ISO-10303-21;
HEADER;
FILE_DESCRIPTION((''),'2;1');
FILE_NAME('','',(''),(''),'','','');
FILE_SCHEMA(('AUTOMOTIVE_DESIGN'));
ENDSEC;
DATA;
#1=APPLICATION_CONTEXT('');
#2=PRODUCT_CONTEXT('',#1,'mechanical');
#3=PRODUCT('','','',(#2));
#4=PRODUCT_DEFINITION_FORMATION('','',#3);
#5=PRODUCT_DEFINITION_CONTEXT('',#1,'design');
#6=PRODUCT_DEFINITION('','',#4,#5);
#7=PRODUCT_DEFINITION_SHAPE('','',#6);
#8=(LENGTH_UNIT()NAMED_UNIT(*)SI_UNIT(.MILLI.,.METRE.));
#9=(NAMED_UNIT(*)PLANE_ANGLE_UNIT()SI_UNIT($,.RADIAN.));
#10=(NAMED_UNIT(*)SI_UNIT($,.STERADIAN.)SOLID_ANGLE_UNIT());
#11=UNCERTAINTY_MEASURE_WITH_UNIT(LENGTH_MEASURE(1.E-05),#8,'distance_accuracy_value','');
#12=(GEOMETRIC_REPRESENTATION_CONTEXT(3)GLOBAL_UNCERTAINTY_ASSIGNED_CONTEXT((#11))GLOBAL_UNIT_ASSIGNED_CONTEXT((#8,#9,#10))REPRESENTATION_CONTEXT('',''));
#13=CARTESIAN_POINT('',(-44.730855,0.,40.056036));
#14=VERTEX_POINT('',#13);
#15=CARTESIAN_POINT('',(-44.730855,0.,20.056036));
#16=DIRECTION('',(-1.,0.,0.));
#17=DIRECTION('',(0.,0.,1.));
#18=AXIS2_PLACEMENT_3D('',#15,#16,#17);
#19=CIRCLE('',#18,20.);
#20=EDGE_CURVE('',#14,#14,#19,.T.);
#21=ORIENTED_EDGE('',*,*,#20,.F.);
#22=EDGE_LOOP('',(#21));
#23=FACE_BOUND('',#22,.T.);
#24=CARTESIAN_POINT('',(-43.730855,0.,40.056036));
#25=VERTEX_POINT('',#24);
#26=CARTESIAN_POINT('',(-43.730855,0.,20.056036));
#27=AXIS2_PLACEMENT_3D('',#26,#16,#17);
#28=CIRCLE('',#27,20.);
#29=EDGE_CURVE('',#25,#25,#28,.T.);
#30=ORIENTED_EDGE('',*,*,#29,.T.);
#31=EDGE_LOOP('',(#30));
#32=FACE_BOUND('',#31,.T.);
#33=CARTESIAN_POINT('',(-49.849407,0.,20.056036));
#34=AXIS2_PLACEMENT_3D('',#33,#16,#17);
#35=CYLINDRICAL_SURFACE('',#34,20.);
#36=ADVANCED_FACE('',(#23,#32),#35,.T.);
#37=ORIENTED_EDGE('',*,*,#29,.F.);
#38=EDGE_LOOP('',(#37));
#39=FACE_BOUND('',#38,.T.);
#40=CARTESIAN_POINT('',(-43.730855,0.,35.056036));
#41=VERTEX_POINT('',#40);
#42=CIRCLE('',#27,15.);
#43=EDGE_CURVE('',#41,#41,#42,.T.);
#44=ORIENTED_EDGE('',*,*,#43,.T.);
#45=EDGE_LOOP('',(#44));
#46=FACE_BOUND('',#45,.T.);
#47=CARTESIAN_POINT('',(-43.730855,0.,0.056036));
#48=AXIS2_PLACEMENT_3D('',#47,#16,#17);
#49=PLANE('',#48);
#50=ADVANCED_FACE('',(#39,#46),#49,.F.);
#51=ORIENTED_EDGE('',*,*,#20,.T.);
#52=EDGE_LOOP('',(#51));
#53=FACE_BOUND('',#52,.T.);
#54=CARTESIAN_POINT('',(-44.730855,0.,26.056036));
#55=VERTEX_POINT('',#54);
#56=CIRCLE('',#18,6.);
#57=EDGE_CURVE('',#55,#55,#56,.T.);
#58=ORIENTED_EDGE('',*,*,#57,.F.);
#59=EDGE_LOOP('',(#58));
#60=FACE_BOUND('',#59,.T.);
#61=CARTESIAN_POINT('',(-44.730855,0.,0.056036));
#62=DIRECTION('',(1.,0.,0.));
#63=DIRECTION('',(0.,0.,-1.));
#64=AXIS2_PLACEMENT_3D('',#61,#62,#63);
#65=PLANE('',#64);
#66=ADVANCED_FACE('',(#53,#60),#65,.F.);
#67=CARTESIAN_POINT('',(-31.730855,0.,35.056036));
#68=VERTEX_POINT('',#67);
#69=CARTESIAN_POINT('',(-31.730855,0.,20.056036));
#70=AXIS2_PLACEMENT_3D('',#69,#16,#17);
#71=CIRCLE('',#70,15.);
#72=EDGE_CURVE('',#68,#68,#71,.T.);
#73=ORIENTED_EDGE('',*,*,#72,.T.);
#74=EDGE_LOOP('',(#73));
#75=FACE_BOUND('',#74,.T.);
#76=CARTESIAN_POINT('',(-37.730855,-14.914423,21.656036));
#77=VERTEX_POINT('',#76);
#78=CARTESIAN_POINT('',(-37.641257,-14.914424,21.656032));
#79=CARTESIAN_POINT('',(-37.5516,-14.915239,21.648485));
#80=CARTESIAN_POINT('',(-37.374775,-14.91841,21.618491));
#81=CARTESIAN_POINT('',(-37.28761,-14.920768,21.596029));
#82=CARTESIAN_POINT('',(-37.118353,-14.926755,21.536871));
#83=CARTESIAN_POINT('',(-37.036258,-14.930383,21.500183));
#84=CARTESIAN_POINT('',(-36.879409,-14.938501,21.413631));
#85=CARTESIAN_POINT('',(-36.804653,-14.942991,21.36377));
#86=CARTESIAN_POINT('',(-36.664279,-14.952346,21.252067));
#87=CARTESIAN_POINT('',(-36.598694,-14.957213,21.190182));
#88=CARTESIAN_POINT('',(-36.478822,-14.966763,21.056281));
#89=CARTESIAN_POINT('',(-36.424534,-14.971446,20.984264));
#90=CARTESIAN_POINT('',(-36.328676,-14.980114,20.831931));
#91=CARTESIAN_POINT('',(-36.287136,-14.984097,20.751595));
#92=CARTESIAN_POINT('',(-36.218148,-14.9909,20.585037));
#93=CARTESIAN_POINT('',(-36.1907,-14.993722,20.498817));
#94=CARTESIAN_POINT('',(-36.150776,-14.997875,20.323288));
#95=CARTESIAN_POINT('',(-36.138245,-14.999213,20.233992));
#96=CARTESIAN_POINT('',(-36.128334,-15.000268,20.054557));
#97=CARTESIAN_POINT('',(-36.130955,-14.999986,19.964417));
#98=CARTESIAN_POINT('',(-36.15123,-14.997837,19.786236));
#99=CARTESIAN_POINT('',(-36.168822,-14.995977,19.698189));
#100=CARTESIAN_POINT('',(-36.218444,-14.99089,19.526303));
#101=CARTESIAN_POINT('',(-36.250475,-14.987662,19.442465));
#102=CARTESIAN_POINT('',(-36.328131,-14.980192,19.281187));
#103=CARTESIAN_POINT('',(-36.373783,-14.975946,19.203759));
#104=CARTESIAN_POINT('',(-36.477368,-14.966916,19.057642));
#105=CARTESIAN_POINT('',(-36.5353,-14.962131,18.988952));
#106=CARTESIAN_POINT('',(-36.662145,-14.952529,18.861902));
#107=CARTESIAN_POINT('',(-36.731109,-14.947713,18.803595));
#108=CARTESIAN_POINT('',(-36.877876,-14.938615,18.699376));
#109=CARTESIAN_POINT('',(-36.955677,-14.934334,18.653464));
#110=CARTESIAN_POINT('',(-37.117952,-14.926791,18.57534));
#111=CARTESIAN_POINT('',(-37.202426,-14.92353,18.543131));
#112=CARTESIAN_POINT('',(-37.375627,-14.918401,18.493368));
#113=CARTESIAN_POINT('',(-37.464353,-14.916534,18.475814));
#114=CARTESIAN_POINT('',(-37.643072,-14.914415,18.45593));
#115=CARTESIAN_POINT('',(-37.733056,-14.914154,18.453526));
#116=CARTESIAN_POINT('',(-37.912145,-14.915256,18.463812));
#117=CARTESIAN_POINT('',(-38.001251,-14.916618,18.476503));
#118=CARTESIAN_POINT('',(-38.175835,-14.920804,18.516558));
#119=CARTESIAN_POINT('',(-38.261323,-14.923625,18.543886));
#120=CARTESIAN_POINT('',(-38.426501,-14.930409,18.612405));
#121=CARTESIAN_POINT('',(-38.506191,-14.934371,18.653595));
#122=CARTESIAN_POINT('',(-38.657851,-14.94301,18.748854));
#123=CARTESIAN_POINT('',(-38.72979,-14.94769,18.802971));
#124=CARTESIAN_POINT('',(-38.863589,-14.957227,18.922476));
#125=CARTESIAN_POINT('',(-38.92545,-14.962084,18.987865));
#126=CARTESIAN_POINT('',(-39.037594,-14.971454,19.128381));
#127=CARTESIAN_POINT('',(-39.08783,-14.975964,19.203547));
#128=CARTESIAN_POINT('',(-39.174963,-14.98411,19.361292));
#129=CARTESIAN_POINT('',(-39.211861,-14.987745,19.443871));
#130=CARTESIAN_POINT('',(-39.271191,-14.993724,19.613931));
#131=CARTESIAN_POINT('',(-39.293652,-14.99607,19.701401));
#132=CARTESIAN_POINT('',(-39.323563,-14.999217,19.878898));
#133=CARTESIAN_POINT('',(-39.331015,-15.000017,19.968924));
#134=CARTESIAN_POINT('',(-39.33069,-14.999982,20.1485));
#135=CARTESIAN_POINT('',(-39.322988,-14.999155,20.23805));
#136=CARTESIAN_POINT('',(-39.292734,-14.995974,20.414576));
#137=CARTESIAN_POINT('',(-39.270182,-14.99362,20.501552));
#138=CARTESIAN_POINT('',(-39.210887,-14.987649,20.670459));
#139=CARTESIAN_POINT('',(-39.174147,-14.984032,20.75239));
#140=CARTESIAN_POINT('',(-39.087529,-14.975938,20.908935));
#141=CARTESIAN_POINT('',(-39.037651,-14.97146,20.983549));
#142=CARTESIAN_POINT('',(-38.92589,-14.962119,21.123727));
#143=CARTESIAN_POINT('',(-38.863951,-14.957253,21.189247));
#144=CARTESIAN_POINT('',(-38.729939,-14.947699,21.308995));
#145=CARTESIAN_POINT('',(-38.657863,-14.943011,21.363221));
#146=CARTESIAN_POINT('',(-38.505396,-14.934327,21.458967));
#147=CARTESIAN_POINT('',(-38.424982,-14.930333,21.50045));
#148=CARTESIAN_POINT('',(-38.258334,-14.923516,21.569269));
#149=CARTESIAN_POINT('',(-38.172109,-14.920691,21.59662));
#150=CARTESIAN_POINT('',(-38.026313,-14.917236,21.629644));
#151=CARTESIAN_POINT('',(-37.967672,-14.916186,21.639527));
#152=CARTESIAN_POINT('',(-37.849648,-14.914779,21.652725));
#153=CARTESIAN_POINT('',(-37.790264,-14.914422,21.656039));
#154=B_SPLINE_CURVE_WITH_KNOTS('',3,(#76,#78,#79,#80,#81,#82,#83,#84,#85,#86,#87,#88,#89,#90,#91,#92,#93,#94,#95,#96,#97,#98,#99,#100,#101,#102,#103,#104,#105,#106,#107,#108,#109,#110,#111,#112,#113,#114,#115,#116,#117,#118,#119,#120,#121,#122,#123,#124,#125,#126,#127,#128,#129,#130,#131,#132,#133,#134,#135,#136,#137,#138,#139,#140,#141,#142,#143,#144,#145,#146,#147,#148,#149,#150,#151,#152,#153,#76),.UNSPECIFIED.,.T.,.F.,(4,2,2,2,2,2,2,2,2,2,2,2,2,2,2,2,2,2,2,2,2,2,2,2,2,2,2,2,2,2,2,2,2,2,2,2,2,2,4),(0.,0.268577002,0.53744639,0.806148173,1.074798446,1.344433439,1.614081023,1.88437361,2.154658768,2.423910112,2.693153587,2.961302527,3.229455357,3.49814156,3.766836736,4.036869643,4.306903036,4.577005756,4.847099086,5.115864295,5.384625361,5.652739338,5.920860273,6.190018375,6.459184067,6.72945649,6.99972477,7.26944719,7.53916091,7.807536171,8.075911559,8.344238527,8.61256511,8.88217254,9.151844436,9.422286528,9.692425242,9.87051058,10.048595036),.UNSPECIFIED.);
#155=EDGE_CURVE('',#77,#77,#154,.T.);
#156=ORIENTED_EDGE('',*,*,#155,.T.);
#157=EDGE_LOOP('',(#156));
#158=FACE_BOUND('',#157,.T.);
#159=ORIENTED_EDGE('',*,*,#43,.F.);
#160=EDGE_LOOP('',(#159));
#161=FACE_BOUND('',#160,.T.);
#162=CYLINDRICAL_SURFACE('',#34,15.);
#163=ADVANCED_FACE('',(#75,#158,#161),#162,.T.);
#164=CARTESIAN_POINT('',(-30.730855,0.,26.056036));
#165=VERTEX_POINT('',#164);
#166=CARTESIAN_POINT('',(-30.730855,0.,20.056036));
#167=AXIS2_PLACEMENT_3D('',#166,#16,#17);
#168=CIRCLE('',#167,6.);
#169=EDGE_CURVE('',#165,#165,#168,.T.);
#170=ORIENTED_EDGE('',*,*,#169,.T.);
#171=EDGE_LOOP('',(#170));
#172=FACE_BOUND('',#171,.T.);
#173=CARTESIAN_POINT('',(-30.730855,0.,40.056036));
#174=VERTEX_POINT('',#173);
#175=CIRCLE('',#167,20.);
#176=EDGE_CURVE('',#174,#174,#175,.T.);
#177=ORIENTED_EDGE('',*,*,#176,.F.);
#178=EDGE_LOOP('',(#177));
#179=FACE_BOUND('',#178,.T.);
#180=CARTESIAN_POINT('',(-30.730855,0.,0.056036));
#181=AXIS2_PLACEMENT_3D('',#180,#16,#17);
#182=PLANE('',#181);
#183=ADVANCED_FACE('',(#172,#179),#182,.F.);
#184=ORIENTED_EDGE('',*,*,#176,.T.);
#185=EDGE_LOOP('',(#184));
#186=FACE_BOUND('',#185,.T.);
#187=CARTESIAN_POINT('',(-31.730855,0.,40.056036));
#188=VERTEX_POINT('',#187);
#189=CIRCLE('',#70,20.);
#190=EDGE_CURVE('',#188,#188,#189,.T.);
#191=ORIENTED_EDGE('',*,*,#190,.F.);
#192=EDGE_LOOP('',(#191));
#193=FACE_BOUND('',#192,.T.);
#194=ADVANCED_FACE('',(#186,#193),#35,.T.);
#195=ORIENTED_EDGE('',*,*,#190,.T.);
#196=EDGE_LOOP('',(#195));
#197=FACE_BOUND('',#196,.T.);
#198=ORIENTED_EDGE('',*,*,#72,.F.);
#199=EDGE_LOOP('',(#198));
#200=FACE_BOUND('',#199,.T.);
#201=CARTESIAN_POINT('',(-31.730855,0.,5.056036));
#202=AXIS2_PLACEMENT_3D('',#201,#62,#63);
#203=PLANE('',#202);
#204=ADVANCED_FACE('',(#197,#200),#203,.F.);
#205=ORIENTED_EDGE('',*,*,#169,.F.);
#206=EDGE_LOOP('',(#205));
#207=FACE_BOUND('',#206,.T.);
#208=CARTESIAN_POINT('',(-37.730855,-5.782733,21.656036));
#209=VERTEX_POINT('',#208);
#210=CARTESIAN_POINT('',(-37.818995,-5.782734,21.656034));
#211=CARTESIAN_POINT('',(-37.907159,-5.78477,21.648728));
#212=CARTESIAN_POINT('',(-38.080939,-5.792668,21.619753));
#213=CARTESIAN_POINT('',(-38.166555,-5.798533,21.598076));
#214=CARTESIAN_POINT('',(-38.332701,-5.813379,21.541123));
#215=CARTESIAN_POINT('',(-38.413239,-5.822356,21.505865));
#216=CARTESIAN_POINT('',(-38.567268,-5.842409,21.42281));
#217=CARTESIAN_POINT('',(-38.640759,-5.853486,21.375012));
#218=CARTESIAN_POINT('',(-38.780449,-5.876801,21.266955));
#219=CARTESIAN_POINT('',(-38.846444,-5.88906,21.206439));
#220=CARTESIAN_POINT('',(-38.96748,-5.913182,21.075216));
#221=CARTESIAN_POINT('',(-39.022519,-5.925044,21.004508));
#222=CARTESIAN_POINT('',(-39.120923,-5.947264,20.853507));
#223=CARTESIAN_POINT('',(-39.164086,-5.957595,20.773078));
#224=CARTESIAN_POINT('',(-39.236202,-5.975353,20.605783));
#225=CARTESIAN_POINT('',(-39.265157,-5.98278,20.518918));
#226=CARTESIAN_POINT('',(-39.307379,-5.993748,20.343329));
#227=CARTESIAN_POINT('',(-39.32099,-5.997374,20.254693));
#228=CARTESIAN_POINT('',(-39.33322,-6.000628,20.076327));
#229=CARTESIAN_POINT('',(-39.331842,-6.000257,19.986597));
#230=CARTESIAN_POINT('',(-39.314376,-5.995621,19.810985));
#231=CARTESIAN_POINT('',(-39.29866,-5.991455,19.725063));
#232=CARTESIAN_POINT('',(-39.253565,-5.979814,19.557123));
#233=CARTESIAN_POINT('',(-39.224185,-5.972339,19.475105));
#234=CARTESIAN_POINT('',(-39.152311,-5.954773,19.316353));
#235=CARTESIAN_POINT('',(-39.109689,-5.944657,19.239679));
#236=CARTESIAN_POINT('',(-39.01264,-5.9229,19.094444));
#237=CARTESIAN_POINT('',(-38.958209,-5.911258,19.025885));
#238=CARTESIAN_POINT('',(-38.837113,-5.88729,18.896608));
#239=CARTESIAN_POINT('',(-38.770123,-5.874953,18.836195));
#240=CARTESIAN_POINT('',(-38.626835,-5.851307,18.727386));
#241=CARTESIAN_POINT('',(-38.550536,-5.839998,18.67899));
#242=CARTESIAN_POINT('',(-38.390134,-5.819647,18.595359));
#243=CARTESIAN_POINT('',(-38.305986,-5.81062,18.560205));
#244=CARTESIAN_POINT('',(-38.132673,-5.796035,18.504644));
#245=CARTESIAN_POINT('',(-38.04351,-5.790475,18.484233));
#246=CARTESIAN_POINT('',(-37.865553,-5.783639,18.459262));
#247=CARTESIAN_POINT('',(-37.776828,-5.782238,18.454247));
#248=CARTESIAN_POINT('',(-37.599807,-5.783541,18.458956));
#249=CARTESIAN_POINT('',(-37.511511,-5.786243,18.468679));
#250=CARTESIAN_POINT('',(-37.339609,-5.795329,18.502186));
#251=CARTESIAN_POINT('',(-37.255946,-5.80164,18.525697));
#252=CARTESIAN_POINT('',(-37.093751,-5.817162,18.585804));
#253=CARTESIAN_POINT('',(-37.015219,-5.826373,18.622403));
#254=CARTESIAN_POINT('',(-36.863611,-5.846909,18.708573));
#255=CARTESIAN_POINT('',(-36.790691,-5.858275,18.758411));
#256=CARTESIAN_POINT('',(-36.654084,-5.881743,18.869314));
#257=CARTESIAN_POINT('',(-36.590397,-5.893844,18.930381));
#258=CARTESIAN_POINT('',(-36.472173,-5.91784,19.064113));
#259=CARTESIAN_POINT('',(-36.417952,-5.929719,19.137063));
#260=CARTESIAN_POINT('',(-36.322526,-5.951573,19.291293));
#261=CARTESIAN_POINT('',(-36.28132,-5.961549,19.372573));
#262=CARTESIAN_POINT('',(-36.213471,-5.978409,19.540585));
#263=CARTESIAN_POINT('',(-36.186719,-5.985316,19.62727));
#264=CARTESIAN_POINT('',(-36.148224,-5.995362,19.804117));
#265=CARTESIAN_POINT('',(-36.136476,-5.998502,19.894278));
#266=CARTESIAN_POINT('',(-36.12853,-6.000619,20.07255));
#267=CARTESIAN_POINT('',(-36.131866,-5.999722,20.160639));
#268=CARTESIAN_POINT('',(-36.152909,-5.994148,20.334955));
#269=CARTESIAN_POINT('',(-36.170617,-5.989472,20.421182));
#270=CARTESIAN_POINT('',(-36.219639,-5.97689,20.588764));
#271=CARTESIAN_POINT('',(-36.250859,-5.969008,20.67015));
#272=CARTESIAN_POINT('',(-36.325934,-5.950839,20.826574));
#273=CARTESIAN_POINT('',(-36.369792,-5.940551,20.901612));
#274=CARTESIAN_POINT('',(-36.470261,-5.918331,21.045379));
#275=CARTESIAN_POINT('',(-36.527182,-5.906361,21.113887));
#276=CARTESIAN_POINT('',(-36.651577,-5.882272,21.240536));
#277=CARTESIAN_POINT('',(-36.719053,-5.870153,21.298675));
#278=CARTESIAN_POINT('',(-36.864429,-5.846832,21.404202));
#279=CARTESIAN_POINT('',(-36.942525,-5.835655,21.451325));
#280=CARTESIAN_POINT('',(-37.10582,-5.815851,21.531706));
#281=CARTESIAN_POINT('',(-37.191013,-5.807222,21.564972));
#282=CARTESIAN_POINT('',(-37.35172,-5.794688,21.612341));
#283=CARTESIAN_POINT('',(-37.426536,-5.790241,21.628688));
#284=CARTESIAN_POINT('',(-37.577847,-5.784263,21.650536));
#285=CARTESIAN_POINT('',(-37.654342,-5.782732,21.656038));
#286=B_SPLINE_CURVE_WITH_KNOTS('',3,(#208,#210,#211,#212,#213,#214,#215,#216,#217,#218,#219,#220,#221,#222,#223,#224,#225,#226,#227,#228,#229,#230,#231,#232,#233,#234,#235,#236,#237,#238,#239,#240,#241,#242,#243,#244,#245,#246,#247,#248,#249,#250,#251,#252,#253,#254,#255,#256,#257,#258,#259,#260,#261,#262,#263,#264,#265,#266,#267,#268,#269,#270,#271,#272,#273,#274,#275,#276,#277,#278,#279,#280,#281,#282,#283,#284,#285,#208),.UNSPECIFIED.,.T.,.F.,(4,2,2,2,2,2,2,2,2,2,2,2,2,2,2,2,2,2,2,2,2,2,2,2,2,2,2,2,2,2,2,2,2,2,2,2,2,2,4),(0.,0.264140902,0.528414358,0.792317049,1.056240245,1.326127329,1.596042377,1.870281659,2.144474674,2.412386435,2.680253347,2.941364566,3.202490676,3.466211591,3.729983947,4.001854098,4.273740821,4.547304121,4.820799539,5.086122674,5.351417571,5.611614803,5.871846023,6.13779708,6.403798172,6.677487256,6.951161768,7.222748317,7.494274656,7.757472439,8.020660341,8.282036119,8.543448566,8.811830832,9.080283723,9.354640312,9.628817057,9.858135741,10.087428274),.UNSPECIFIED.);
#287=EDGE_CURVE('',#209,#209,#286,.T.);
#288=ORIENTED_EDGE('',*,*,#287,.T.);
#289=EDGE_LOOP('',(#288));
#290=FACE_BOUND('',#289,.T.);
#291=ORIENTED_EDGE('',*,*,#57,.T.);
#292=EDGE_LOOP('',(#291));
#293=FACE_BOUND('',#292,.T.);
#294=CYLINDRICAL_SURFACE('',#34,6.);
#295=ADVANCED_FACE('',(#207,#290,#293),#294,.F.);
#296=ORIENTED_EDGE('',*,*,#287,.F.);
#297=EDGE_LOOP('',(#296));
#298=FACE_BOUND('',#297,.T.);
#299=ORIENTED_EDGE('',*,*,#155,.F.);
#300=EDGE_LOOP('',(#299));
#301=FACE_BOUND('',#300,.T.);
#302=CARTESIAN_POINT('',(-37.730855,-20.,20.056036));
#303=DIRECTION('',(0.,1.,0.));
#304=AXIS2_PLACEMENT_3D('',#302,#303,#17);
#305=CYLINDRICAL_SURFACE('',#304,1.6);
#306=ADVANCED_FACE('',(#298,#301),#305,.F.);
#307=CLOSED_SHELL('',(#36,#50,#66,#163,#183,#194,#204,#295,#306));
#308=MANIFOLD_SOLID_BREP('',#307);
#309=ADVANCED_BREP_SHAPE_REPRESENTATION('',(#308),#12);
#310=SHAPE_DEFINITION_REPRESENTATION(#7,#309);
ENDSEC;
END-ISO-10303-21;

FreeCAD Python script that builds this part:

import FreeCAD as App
import Part
import Sketcher


def add_polygon(sketch, points):
    """Adds a closed chain of lines whose ends are joined by coincident constraints."""
    first, n = sketch.GeometryCount, len(points)
    for a, b in zip(points, points[1:] + points[:1]):
        sketch.addGeometry(Part.LineSegment(App.Vector(*a, 0), App.Vector(*b, 0)), False)
    for i in range(n):
        sketch.addConstraint(Sketcher.Constraint("Coincident", first + i, 2, first + (i + 1) % n, 1))

doc = App.newDocument("Part")
body = doc.addObject("PartDesign::Body", "Body")

sketch1 = body.newObject("Sketcher::SketchObject", "Sketch")
sketch1.AttachmentSupport = (doc.getObject("XZ_Plane"), [""])
sketch1.MapMode = "FlatFace"
add_polygon(sketch1, [(-44.7, 0.1), (-44.7, 14.1), (-30.7, 14.1), (-30.7, 0.1), (-31.7, 0.1), (-31.7, 5.1), (-43.7, 5.1), (-43.7, 0.1)])
sketch1.addGeometry(Part.LineSegment(App.Vector(-44.7, 20.1, 0), App.Vector(-30.7, 20.1, 0)), True)
sketch1.addConstraint([
    Sketcher.Constraint("Vertical", 0),
    Sketcher.Constraint("Horizontal", 1),
    Sketcher.Constraint("Vertical", 2),
    Sketcher.Constraint("Horizontal", 3),
    Sketcher.Constraint("Vertical", 4),
    Sketcher.Constraint("Horizontal", 5),
    Sketcher.Constraint("Vertical", 6),
    Sketcher.Constraint("Horizontal", 7),
    Sketcher.Constraint("Horizontal", 8),
    Sketcher.Constraint("Horizontal", 3, 2, 6, 2),
    Sketcher.Constraint("Vertical", 7, 2, 8, 1),
    Sketcher.Constraint("Vertical", 2, 2, 8, 2),
    Sketcher.Constraint("Equal", 3, 7),
    Sketcher.Constraint("Equal", 8, 0),
    Sketcher.Constraint("DistanceX", 1, 1, 1, 2, 14.0),
    Sketcher.Constraint("DistanceX", 3, 2, 3, 1, 1.0),
    Sketcher.Constraint("DistanceY", 4, 1, 4, 2, 5.0),
    Sketcher.Constraint("DistanceY", 0, 2, 8, 1, 6.0),
    Sketcher.Constraint("DistanceX", 0, 2, -1, 1, 44.730855),
    Sketcher.Constraint("DistanceY", -1, 1, 0, 2, 14.056036),
])
revolution = body.newObject("PartDesign::Revolution", "Revolution")
revolution.Profile = sketch1
revolution.ReferenceAxis = (sketch1, ["Axis0"])
revolution.Angle = 360

sketch2 = body.newObject("Sketcher::SketchObject", "Sketch001")
sketch2.AttachmentSupport = (doc.getObject("XZ_Plane"), [""])
sketch2.MapMode = "FlatFace"
sketch2.addGeometry(Part.Circle(App.Vector(-37.7, 20.1, 0), App.Vector(0, 0, 1), 1.6), False)
sketch2.addConstraint([
    Sketcher.Constraint("Diameter", 0, 3.2),
    Sketcher.Constraint("DistanceX", 0, 3, -1, 1, 37.730855),
    Sketcher.Constraint("DistanceY", -1, 1, 0, 3, 20.056036),
])
pocket1 = body.newObject("PartDesign::Pocket", "Pocket")
pocket1.Profile = sketch2
pocket1.Type = "ThroughAll"
pocket1.Reversed = True

doc.recompute()
